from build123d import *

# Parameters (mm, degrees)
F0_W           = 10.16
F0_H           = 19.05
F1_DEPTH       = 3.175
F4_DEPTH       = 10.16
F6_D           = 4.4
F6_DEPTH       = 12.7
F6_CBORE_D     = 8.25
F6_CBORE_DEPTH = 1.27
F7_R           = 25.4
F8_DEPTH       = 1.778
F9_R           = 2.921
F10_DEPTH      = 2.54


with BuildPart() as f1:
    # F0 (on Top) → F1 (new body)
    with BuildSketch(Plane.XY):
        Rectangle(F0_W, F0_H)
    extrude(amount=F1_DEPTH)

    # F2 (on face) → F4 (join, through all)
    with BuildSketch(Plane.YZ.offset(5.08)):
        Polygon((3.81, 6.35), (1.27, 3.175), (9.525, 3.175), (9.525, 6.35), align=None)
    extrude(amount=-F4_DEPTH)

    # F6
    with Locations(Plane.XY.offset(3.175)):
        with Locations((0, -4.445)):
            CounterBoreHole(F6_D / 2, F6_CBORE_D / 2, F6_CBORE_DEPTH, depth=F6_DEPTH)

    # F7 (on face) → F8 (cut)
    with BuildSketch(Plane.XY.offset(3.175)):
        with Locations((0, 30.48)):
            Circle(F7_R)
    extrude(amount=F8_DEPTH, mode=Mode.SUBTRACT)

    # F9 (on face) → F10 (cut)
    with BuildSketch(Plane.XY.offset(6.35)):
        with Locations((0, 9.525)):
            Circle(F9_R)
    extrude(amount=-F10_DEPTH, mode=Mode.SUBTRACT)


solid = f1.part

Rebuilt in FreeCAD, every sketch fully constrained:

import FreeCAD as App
import Part
import Sketcher
Q = App.Units.Quantity

doc = App.newDocument("Part")
body = doc.addObject("PartDesign::Body", "Body")

# Sketch on XY plane
sketch1 = doc.addObject("Sketcher::SketchObject", "Sketch")
body.addObject(sketch1)
sketch1.AttachmentSupport = (doc.XY_Plane, [""])
sketch1.MapMode = "FlatFace"
sketch1.addGeometry([
    Part.LineSegment(App.Vector(-5, 10, 0), App.Vector(-5, -10, 0)),
    Part.LineSegment(App.Vector(-5, -10, 0), App.Vector(5, -10, 0)),
    Part.LineSegment(App.Vector(5, -10, 0), App.Vector(5, 10, 0)),
    Part.LineSegment(App.Vector(5, 10, 0), App.Vector(-5, 10, 0)),
], False)
sketch1.addConstraint([
    Sketcher.Constraint("Coincident", 0, 2, 1, 1),
    Sketcher.Constraint("Coincident", 1, 2, 2, 1),
    Sketcher.Constraint("Coincident", 2, 2, 3, 1),
    Sketcher.Constraint("Coincident", 3, 2, 0, 1),
    Sketcher.Constraint("Vertical", 0),
    Sketcher.Constraint("Horizontal", 1),
    Sketcher.Constraint("Vertical", 2),
    Sketcher.Constraint("Horizontal", 3),
    Sketcher.Constraint("Symmetric", 0, 2, 2, 2, -1, 1),
    Sketcher.Constraint("DistanceX", 1, 1, 1, 2, Q("0.4 in")),
    Sketcher.Constraint("DistanceY", 0, 2, 0, 1, Q("0.75 in")),
])
pad1 = doc.addObject("PartDesign::Pad", "Pad")
body.addObject(pad1)
pad1.Profile = sketch1
pad1.Length = Q("0.125 in")

# Sketch on YZ plane
sketch2 = doc.addObject("Sketcher::SketchObject", "Sketch001")
body.addObject(sketch2)
sketch2.AttachmentSupport = (doc.YZ_Plane, [""])
sketch2.MapMode = "FlatFace"
sketch2.AttachmentOffset = App.Placement(App.Vector(0, 0, 0.2 * 25.4), App.Rotation())
sketch2.addGeometry([
    Part.LineSegment(App.Vector(3.8, 6.3, 0), App.Vector(1.3, 3.2, 0)),
    Part.LineSegment(App.Vector(1.3, 3.2, 0), App.Vector(9.5, 3.2, 0)),
    Part.LineSegment(App.Vector(9.5, 3.2, 0), App.Vector(9.5, 6.3, 0)),
    Part.LineSegment(App.Vector(9.5, 6.3, 0), App.Vector(3.8, 6.3, 0)),
], False)
sketch2.addConstraint([
    Sketcher.Constraint("Coincident", 0, 2, 1, 1),
    Sketcher.Constraint("Coincident", 1, 2, 2, 1),
    Sketcher.Constraint("Coincident", 2, 2, 3, 1),
    Sketcher.Constraint("Coincident", 3, 2, 0, 1),
    Sketcher.Constraint("Horizontal", 1),
    Sketcher.Constraint("Vertical", 2),
    Sketcher.Constraint("Horizontal", 3),
    Sketcher.Constraint("DistanceX", 0, 2, 3, 2, Q("0.1 in")),
    Sketcher.Constraint("DistanceX", 1, 1, 1, 2, Q("0.325 in")),
    Sketcher.Constraint("DistanceY", 2, 1, 2, 2, Q("0.125 in")),
    Sketcher.Constraint("DistanceX", -1, 1, 0, 2, Q("0.05 in")),
    Sketcher.Constraint("DistanceY", -1, 1, 2, 2, Q("0.25 in")),
])
pad2 = doc.addObject("PartDesign::Pad", "Pad001")
body.addObject(pad2)
pad2.Profile = sketch2
pad2.Length = Q("0.4 in")
pad2.Reversed = True

# Sketch on XY plane
sketch3 = doc.addObject("Sketcher::SketchObject", "Sketch002")
body.addObject(sketch3)
sketch3.AttachmentSupport = (doc.XY_Plane, [""])
sketch3.MapMode = "FlatFace"
sketch3.AttachmentOffset = App.Placement(App.Vector(0, 0, 0.125 * 25.4), App.Rotation())
sketch3.addGeometry(Part.Circle(App.Vector(0, -4.4, 0), App.Vector(0, 0, 1), 2.2), False)
sketch3.addConstraint([
    Sketcher.Constraint("PointOnObject", 0, 3, -2),
    Sketcher.Constraint("Diameter", 0, Q("4.4 mm")),
    Sketcher.Constraint("DistanceY", 0, 3, -1, 1, Q("0.175 in")),
])
doc.recompute()
hole = doc.addObject("PartDesign::Hole", "Hole")
body.addObject(hole)
hole.Profile = sketch3
hole.ThreadType = "None"
hole.Diameter = 4.4
hole.DepthType = "Dimension"
hole.Depth = Q("0.5 in")
hole.DrillPoint = "Flat"
hole.HoleCutType = "Counterbore"
hole.HoleCutDiameter = 8.25
hole.HoleCutDepth = Q("0.05 in")

# Sketch on XY plane
sketch4 = doc.addObject("Sketcher::SketchObject", "Sketch003")
body.addObject(sketch4)
sketch4.AttachmentSupport = (doc.XY_Plane, [""])
sketch4.MapMode = "FlatFace"
sketch4.AttachmentOffset = App.Placement(App.Vector(0, 0, 0.125 * 25.4), App.Rotation())
sketch4.addGeometry(Part.Circle(App.Vector(0, 30, 0), App.Vector(0, 0, 1), 25), False)
sketch4.addConstraint([
    Sketcher.Constraint("PointOnObject", 0, 3, -2),
    Sketcher.Constraint("Diameter", 0, Q("2 in")),
    Sketcher.Constraint("DistanceY", -1, 1, 0, 3, Q("1.2 in")),
])
pocket1 = doc.addObject("PartDesign::Pocket", "Pocket")
body.addObject(pocket1)
pocket1.Profile = sketch4
pocket1.Length = Q("0.07 in")
pocket1.Reversed = True

# Sketch on XY plane
sketch5 = doc.addObject("Sketcher::SketchObject", "Sketch004")
body.addObject(sketch5)
sketch5.AttachmentSupport = (doc.XY_Plane, [""])
sketch5.MapMode = "FlatFace"
sketch5.AttachmentOffset = App.Placement(App.Vector(0, 0, 0.25 * 25.4), App.Rotation())
sketch5.addGeometry(Part.Circle(App.Vector(0, 9.5, 0), App.Vector(0, 0, 1), 2.9), False)
sketch5.addConstraint([
    Sketcher.Constraint("PointOnObject", 0, 3, -2),
    Sketcher.Constraint("Diameter", 0, Q("0.23 in")),
    Sketcher.Constraint("DistanceY", -1, 1, 0, 3, Q("0.375 in")),
])
pocket2 = doc.addObject("PartDesign::Pocket", "Pocket001")
body.addObject(pocket2)
pocket2.Profile = sketch5
pocket2.Length = Q("0.1 in")

doc.recompute()
